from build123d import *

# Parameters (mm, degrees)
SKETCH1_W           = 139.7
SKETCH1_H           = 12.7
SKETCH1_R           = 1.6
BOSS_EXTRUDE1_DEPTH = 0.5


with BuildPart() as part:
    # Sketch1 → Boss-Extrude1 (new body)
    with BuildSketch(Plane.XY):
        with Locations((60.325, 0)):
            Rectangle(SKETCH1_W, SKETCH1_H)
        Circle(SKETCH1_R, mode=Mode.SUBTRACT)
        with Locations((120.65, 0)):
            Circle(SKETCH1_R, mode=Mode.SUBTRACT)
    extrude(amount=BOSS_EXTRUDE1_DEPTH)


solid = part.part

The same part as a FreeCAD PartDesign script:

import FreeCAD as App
import Part
import Sketcher
from FreeCAD import Vector

doc = App.newDocument("Part")
body = doc.addObject("PartDesign::Body", "Body")

sketch1 = body.newObject("Sketcher::SketchObject", "Sketch")
sketch1.AttachmentSupport = (doc.getObject("XY_Plane"), [""])
sketch1.MapMode = "FlatFace"
sketch1.addGeometry([
    Part.LineSegment(Vector(-9.525, 6.35, 0), Vector(-9.525, -6.35, 0)),
    Part.LineSegment(Vector(-9.525, -6.35, 0), Vector(130.175, -6.35, 0)),
    Part.LineSegment(Vector(130.175, -6.35, 0), Vector(130.175, 6.35, 0)),
    Part.LineSegment(Vector(130.175, 6.35, 0), Vector(-9.525, 6.35, 0)),
    Part.Circle(Vector(0, 0, 0), Vector(0, 0, 1), 1.6),
    Part.Circle(Vector(120.65, 0, 0), Vector(0, 0, 1), 1.6),
], False)
sketch1.addConstraint([
    Sketcher.Constraint("Coincident", 0, 2, 1, 1),
    Sketcher.Constraint("Coincident", 1, 2, 2, 1),
    Sketcher.Constraint("Coincident", 2, 2, 3, 1),
    Sketcher.Constraint("Coincident", 3, 2, 0, 1),
    Sketcher.Constraint("Vertical", 0),
    Sketcher.Constraint("Horizontal", 1),
    Sketcher.Constraint("Vertical", 2),
    Sketcher.Constraint("Horizontal", 3),
    Sketcher.Constraint("Coincident", 4, 3, -1, 1),
    Sketcher.Constraint("Equal", 4, 5),
    Sketcher.Constraint("PointOnObject", 5, 3, -1),
    Sketcher.Constraint("Diameter", 4, 3.2),
    Sketcher.Constraint("DistanceX", 1, 1, 1, 2, 139.7),
    Sketcher.Constraint("DistanceY", 0, 2, 0, 1, 12.7),
    Sketcher.Constraint("DistanceX", -1, 1, 5, 3, 120.65),
    Sketcher.Constraint("DistanceY", 0, 2, -1, 1, 6.35),
    Sketcher.Constraint("DistanceX", 0, 2, -1, 1, 9.525),
])
pad1 = body.newObject("PartDesign::Pad", "Pad")
pad1.Profile = sketch1
pad1.Length = 0.5

doc.recompute()
